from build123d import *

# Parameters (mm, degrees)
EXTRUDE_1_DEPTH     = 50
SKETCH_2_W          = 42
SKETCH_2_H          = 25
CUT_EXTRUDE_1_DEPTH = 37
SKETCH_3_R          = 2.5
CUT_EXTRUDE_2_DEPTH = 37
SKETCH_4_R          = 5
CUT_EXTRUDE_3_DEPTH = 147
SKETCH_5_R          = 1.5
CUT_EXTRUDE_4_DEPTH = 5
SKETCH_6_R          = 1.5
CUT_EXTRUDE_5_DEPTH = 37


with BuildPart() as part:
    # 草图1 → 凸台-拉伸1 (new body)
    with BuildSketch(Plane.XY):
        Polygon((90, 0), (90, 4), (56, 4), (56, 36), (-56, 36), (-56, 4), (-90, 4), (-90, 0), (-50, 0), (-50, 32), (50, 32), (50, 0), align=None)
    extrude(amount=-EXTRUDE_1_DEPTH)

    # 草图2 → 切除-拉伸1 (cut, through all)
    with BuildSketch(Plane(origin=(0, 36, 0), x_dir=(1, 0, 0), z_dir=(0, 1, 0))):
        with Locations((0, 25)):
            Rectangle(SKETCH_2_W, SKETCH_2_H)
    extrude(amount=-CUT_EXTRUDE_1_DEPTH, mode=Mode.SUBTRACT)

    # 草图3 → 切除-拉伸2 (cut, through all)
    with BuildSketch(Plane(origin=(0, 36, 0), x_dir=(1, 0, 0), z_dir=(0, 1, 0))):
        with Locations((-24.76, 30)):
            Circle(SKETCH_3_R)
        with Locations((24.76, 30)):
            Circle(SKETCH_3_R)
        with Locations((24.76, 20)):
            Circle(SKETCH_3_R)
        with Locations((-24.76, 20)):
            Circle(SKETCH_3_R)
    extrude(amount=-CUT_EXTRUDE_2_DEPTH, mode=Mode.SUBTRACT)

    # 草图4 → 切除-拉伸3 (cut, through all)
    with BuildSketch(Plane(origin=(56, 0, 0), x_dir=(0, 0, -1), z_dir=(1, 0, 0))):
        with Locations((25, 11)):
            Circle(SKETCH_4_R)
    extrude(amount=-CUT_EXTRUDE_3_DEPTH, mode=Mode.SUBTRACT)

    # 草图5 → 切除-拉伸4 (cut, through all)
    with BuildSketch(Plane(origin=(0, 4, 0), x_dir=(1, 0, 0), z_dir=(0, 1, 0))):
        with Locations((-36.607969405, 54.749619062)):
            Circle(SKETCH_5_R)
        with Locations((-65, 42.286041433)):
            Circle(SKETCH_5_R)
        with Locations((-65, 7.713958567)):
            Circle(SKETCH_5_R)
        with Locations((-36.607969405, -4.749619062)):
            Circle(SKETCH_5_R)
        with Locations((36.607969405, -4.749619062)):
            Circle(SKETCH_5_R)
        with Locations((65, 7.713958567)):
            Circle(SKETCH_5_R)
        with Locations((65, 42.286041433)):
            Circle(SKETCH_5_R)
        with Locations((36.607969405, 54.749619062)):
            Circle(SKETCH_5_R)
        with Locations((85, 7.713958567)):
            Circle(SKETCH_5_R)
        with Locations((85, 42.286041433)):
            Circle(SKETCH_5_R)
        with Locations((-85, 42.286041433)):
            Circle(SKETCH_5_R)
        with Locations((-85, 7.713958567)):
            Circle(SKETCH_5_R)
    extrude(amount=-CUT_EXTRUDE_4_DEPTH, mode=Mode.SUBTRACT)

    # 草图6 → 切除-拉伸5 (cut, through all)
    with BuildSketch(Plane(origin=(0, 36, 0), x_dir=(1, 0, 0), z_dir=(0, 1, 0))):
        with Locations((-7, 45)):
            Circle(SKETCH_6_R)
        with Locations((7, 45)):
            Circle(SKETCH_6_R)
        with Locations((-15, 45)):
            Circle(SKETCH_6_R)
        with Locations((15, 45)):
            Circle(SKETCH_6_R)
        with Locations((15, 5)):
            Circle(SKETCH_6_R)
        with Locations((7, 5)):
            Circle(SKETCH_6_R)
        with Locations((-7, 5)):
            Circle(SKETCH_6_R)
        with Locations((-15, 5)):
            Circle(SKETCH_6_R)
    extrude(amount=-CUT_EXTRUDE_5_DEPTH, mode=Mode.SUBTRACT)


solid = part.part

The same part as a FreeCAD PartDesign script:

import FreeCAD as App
import Part
import Sketcher

V = App.Vector
Q = App.Units.Quantity


def add_polygon(sketch, points):
    """Adds a closed chain of lines whose ends are joined by coincident constraints."""
    first, n = sketch.GeometryCount, len(points)
    for a, b in zip(points, points[1:] + points[:1]):
        sketch.addGeometry(Part.LineSegment(App.Vector(*a, 0), App.Vector(*b, 0)), False)
    for i in range(n):
        sketch.addConstraint(Sketcher.Constraint("Coincident", first + i, 2, first + (i + 1) % n, 1))

doc = App.newDocument("Part")
body = doc.addObject("PartDesign::Body", "Body")

# Sketch on XY plane
sketch1 = body.newObject("Sketcher::SketchObject", "Sketch")
sketch1.AttachmentSupport = (doc.getObject("XY_Plane"), [""])
sketch1.MapMode = "FlatFace"
add_polygon(sketch1, [(90, 0), (90, 4), (56, 4), (56, 36), (-56, 36), (-56, 4), (-90, 4), (-90, 0), (-50, 0), (-50, 32), (50, 32), (50, 0)])  # lines 0-11
sketch1.addConstraint(Sketcher.Constraint("Vertical", 0))
sketch1.addConstraint(Sketcher.Constraint("Horizontal", 1))
sketch1.addConstraint(Sketcher.Constraint("Vertical", 2))
sketch1.addConstraint(Sketcher.Constraint("Horizontal", 3))
sketch1.addConstraint(Sketcher.Constraint("Vertical", 4))
sketch1.addConstraint(Sketcher.Constraint("Horizontal", 5))
sketch1.addConstraint(Sketcher.Constraint("Vertical", 6))
sketch1.addConstraint(Sketcher.Constraint("Horizontal", 7))
sketch1.addConstraint(Sketcher.Constraint("Vertical", 8))
sketch1.addConstraint(Sketcher.Constraint("Horizontal", 9))
sketch1.addConstraint(Sketcher.Constraint("Vertical", 10))
sketch1.addConstraint(Sketcher.Constraint("Horizontal", 11))
sketch1.addConstraint(Sketcher.Constraint("Symmetric", 7, 2, 10, 2, -1, 1))
sketch1.addConstraint(Sketcher.Constraint("Symmetric", 1, 2, 4, 2, -2))
sketch1.addConstraint(Sketcher.Constraint("Symmetric", 6, 2, 11, 2, -2))
sketch1.addConstraint(Sketcher.Constraint("Equal", 4, 8))
sketch1.addConstraint(Sketcher.Constraint("DistanceX", 1, 2, 1, 1, Q("34 mm")))
sketch1.addConstraint(Sketcher.Constraint("DistanceX", 3, 2, 3, 1, Q("112 mm")))
sketch1.addConstraint(Sketcher.Constraint("DistanceX", 7, 1, 7, 2, Q("40 mm")))
sketch1.addConstraint(Sketcher.Constraint("DistanceY", 0, 1, 0, 2, Q("4 mm")))
sketch1.addConstraint(Sketcher.Constraint("DistanceY", 2, 1, 2, 2, Q("32 mm")))
pad1 = body.newObject("PartDesign::Pad", "Pad")
pad1.Profile = sketch1
pad1.Length = 50
pad1.Reversed = True

# Sketch on XZ plane
sketch2 = body.newObject("Sketcher::SketchObject", "Sketch001")
sketch2.AttachmentSupport = (doc.getObject("XZ_Plane"), [""])
sketch2.MapMode = "FlatFace"
sketch2.AttachmentOffset = App.Placement(V(0, 0, -36), App.Rotation())
add_polygon(sketch2, [(-21, -37.5), (-21, -12.5), (21, -12.5), (21, -37.5)])  # lines 0-3
sketch2.addConstraint(Sketcher.Constraint("Vertical", 0))
sketch2.addConstraint(Sketcher.Constraint("Horizontal", 1))
sketch2.addConstraint(Sketcher.Constraint("Vertical", 2))
sketch2.addConstraint(Sketcher.Constraint("Horizontal", 3))
sketch2.addConstraint(Sketcher.Constraint("DistanceX", 1, 1, 1, 2, Q("42 mm")))
sketch2.addConstraint(Sketcher.Constraint("DistanceY", 0, 1, 0, 2, Q("25 mm")))
sketch2.addConstraint(Sketcher.Constraint("DistanceX", 0, 2, -1, 1, Q("21 mm")))
sketch2.addConstraint(Sketcher.Constraint("DistanceY", 0, 2, -1, 1, Q("12.5 mm")))
pocket1 = body.newObject("PartDesign::Pocket", "Pocket")
pocket1.Profile = sketch2
pocket1.Type = "ThroughAll"
pocket1.Reversed = True

# Sketch on XZ plane
sketch3 = body.newObject("Sketcher::SketchObject", "Sketch002")
sketch3.AttachmentSupport = (doc.getObject("XZ_Plane"), [""])
sketch3.MapMode = "FlatFace"
sketch3.AttachmentOffset = App.Placement(V(0, 0, -36), App.Rotation())
sketch3.addGeometry(Part.Circle(V(-24.76, -30, 0), V(0, 0, 1), 2.5), False)
sketch3.addGeometry(Part.Circle(V(24.76, -30, 0), V(0, 0, 1), 2.5), False)
sketch3.addGeometry(Part.Circle(V(24.76, -20, 0), V(0, 0, 1), 2.5), False)
sketch3.addGeometry(Part.Circle(V(-24.76, -20, 0), V(0, 0, 1), 2.5), False)
sketch3.addConstraint(Sketcher.Constraint("Equal", 0, 1))
sketch3.addConstraint(Sketcher.Constraint("Equal", 1, 2))
sketch3.addConstraint(Sketcher.Constraint("Equal", 2, 3))
sketch3.addConstraint(Sketcher.Constraint("Symmetric", 0, 3, 1, 3, -2))
sketch3.addConstraint(Sketcher.Constraint("Symmetric", 2, 3, 3, 3, -2))
sketch3.addConstraint(Sketcher.Constraint("Vertical", 1, 3, 2, 3))
sketch3.addConstraint(Sketcher.Constraint("Diameter", 0, Q("5 mm")))
sketch3.addConstraint(Sketcher.Constraint("DistanceY", 0, 3, -1, 1, Q("30 mm")))
sketch3.addConstraint(Sketcher.Constraint("DistanceY", 2, 3, -1, 1, Q("20 mm")))
sketch3.addConstraint(Sketcher.Constraint("DistanceX", 0, 3, -1, 1, Q("24.76 mm")))
pocket2 = body.newObject("PartDesign::Pocket", "Pocket001")
pocket2.Profile = sketch3
pocket2.Type = "ThroughAll"
pocket2.Reversed = True

# Sketch on YZ plane
sketch4 = body.newObject("Sketcher::SketchObject", "Sketch003")
sketch4.AttachmentSupport = (doc.getObject("YZ_Plane"), [""])
sketch4.MapMode = "FlatFace"
sketch4.AttachmentOffset = App.Placement(V(0, 0, 56), App.Rotation())
sketch4.addGeometry(Part.Circle(V(11, -25, 0), V(0, 0, 1), 5), False)
sketch4.addConstraint(Sketcher.Constraint("Diameter", 0, Q("10 mm")))
sketch4.addConstraint(Sketcher.Constraint("DistanceX", -1, 1, 0, 3, Q("11 mm")))
sketch4.addConstraint(Sketcher.Constraint("DistanceY", 0, 3, -1, 1, Q("25 mm")))
pocket3 = body.newObject("PartDesign::Pocket", "Pocket002")
pocket3.Profile = sketch4
pocket3.Type = "ThroughAll"

# Sketch on XZ plane
sketch5 = body.newObject("Sketcher::SketchObject", "Sketch004")
sketch5.AttachmentSupport = (doc.getObject("XZ_Plane"), [""])
sketch5.MapMode = "FlatFace"
sketch5.AttachmentOffset = App.Placement(V(0, 0, -4), App.Rotation())
sketch5.addGeometry(Part.Circle(V(-36.607969, -54.749619, 0), V(0, 0, 1), 1.5), False)
sketch5.addGeometry(Part.Circle(V(-65, -42.286041, 0), V(0, 0, 1), 1.5), False)
sketch5.addGeometry(Part.Circle(V(-65, -7.713959, 0), V(0, 0, 1), 1.5), False)
sketch5.addGeometry(Part.Circle(V(-36.607969, 4.749619, 0), V(0, 0, 1), 1.5), False)
sketch5.addGeometry(Part.Circle(V(36.607969, 4.749619, 0), V(0, 0, 1), 1.5), False)
sketch5.addGeometry(Part.Circle(V(65, -7.713959, 0), V(0, 0, 1), 1.5), False)
sketch5.addGeometry(Part.Circle(V(65, -42.286041, 0), V(0, 0, 1), 1.5), False)
sketch5.addGeometry(Part.Circle(V(36.607969, -54.749619, 0), V(0, 0, 1), 1.5), False)
sketch5.addGeometry(Part.Circle(V(85, -7.713959, 0), V(0, 0, 1), 1.5), False)
sketch5.addGeometry(Part.Circle(V(85, -42.286041, 0), V(0, 0, 1), 1.5), False)
sketch5.addGeometry(Part.Circle(V(-85, -42.286041, 0), V(0, 0, 1), 1.5), False)
sketch5.addGeometry(Part.Circle(V(-85, -7.713959, 0), V(0, 0, 1), 1.5), False)
sketch5.addConstraint(Sketcher.Constraint("Equal", 0, 1))
sketch5.addConstraint(Sketcher.Constraint("Equal", 1, 2))
sketch5.addConstraint(Sketcher.Constraint("Equal", 2, 3))
sketch5.addConstraint(Sketcher.Constraint("Equal", 3, 4))
sketch5.addConstraint(Sketcher.Constraint("Equal", 4, 5))
sketch5.addConstraint(Sketcher.Constraint("Equal", 5, 6))
sketch5.addConstraint(Sketcher.Constraint("Equal", 6, 7))
sketch5.addConstraint(Sketcher.Constraint("Equal", 7, 8))
sketch5.addConstraint(Sketcher.Constraint("Equal", 8, 9))
sketch5.addConstraint(Sketcher.Constraint("Equal", 9, 10))
sketch5.addConstraint(Sketcher.Constraint("Equal", 10, 11))
sketch5.addConstraint(Sketcher.Constraint("Symmetric", 3, 3, 4, 3, -2))
sketch5.addConstraint(Sketcher.Constraint("Symmetric", 2, 3, 5, 3, -2))
sketch5.addConstraint(Sketcher.Constraint("Symmetric", 1, 3, 6, 3, -2))
sketch5.addConstraint(Sketcher.Constraint("Symmetric", 0, 3, 7, 3, -2))
sketch5.addConstraint(Sketcher.Constraint("Symmetric", 9, 3, 10, 3, -2))
sketch5.addConstraint(Sketcher.Constraint("Symmetric", 8, 3, 11, 3, -2))
sketch5.addConstraint(Sketcher.Constraint("Horizontal", 5, 3, 8, 3))
sketch5.addConstraint(Sketcher.Constraint("Horizontal", 6, 3, 9, 3))
sketch5.addConstraint(Sketcher.Constraint("Vertical", 1, 3, 2, 3))
sketch5.addConstraint(Sketcher.Constraint("Vertical", 0, 3, 3, 3))
sketch5.addConstraint(Sketcher.Constraint("Vertical", 8, 3, 9, 3))
sketch5.addConstraint(Sketcher.Constraint("Diameter", 0, Q("3 mm")))
sketch5.addConstraint(Sketcher.Constraint("DistanceX", 1, 3, -1, 1, Q("65 mm")))
sketch5.addConstraint(Sketcher.Constraint("DistanceX", -1, 1, 8, 3, Q("85 mm")))
sketch5.addConstraint(Sketcher.Constraint("DistanceX", 0, 3, -1, 1, Q("36.607969 mm")))
sketch5.addConstraint(Sketcher.Constraint("DistanceY", 0, 3, -1, 1, Q("54.749619 mm")))
sketch5.addConstraint(Sketcher.Constraint("DistanceY", 1, 3, -1, 1, Q("42.286041 mm")))
sketch5.addConstraint(Sketcher.Constraint("DistanceY", 2, 3, -1, 1, Q("7.713959 mm")))
sketch5.addConstraint(Sketcher.Constraint("DistanceY", -1, 1, 3, 3, Q("4.749619 mm")))
pocket4 = body.newObject("PartDesign::Pocket", "Pocket003")
pocket4.Profile = sketch5
pocket4.Type = "ThroughAll"
pocket4.Reversed = True

# Sketch on XZ plane
sketch6 = body.newObject("Sketcher::SketchObject", "Sketch005")
sketch6.AttachmentSupport = (doc.getObject("XZ_Plane"), [""])
sketch6.MapMode = "FlatFace"
sketch6.AttachmentOffset = App.Placement(V(0, 0, -36), App.Rotation())
sketch6.addGeometry(Part.Circle(V(-7, -45, 0), V(0, 0, 1), 1.5), False)
sketch6.addGeometry(Part.Circle(V(7, -45, 0), V(0, 0, 1), 1.5), False)
sketch6.addGeometry(Part.Circle(V(-15, -45, 0), V(0, 0, 1), 1.5), False)
sketch6.addGeometry(Part.Circle(V(15, -45, 0), V(0, 0, 1), 1.5), False)
sketch6.addGeometry(Part.Circle(V(15, -5, 0), V(0, 0, 1), 1.5), False)
sketch6.addGeometry(Part.Circle(V(7, -5, 0), V(0, 0, 1), 1.5), False)
sketch6.addGeometry(Part.Circle(V(-7, -5, 0), V(0, 0, 1), 1.5), False)
sketch6.addGeometry(Part.Circle(V(-15, -5, 0), V(0, 0, 1), 1.5), False)
sketch6.addConstraint(Sketcher.Constraint("Equal", 0, 1))
sketch6.addConstraint(Sketcher.Constraint("Equal", 1, 2))
sketch6.addConstraint(Sketcher.Constraint("Equal", 2, 3))
sketch6.addConstraint(Sketcher.Constraint("Equal", 3, 4))
sketch6.addConstraint(Sketcher.Constraint("Equal", 4, 5))
sketch6.addConstraint(Sketcher.Constraint("Equal", 5, 6))
sketch6.addConstraint(Sketcher.Constraint("Equal", 6, 7))
sketch6.addConstraint(Sketcher.Constraint("Symmetric", 0, 3, 1, 3, -2))
sketch6.addConstraint(Sketcher.Constraint("Symmetric", 2, 3, 3, 3, -2))
sketch6.addConstraint(Sketcher.Constraint("Symmetric", 5, 3, 6, 3, -2))
sketch6.addConstraint(Sketcher.Constraint("Symmetric", 4, 3, 7, 3, -2))
sketch6.addConstraint(Sketcher.Constraint("Horizontal", 1, 3, 2, 3))
sketch6.addConstraint(Sketcher.Constraint("Horizontal", 4, 3, 5, 3))
sketch6.addConstraint(Sketcher.Constraint("Vertical", 3, 3, 4, 3))
sketch6.addConstraint(Sketcher.Constraint("Vertical", 1, 3, 5, 3))
sketch6.addConstraint(Sketcher.Constraint("Diameter", 0, Q("3 mm")))
sketch6.addConstraint(Sketcher.Constraint("DistanceX", 0, 3, -1, 1, Q("7 mm")))
sketch6.addConstraint(Sketcher.Constraint("DistanceY", 0, 3, -1, 1, Q("45 mm")))
sketch6.addConstraint(Sketcher.Constraint("DistanceX", 2, 3, -1, 1, Q("15 mm")))
sketch6.addConstraint(Sketcher.Constraint("DistanceY", 4, 3, -1, 1, Q("5 mm")))
pocket5 = body.newObject("PartDesign::Pocket", "Pocket004")
pocket5.Profile = sketch6
pocket5.Type = "ThroughAll"
pocket5.Reversed = True

doc.recompute()
